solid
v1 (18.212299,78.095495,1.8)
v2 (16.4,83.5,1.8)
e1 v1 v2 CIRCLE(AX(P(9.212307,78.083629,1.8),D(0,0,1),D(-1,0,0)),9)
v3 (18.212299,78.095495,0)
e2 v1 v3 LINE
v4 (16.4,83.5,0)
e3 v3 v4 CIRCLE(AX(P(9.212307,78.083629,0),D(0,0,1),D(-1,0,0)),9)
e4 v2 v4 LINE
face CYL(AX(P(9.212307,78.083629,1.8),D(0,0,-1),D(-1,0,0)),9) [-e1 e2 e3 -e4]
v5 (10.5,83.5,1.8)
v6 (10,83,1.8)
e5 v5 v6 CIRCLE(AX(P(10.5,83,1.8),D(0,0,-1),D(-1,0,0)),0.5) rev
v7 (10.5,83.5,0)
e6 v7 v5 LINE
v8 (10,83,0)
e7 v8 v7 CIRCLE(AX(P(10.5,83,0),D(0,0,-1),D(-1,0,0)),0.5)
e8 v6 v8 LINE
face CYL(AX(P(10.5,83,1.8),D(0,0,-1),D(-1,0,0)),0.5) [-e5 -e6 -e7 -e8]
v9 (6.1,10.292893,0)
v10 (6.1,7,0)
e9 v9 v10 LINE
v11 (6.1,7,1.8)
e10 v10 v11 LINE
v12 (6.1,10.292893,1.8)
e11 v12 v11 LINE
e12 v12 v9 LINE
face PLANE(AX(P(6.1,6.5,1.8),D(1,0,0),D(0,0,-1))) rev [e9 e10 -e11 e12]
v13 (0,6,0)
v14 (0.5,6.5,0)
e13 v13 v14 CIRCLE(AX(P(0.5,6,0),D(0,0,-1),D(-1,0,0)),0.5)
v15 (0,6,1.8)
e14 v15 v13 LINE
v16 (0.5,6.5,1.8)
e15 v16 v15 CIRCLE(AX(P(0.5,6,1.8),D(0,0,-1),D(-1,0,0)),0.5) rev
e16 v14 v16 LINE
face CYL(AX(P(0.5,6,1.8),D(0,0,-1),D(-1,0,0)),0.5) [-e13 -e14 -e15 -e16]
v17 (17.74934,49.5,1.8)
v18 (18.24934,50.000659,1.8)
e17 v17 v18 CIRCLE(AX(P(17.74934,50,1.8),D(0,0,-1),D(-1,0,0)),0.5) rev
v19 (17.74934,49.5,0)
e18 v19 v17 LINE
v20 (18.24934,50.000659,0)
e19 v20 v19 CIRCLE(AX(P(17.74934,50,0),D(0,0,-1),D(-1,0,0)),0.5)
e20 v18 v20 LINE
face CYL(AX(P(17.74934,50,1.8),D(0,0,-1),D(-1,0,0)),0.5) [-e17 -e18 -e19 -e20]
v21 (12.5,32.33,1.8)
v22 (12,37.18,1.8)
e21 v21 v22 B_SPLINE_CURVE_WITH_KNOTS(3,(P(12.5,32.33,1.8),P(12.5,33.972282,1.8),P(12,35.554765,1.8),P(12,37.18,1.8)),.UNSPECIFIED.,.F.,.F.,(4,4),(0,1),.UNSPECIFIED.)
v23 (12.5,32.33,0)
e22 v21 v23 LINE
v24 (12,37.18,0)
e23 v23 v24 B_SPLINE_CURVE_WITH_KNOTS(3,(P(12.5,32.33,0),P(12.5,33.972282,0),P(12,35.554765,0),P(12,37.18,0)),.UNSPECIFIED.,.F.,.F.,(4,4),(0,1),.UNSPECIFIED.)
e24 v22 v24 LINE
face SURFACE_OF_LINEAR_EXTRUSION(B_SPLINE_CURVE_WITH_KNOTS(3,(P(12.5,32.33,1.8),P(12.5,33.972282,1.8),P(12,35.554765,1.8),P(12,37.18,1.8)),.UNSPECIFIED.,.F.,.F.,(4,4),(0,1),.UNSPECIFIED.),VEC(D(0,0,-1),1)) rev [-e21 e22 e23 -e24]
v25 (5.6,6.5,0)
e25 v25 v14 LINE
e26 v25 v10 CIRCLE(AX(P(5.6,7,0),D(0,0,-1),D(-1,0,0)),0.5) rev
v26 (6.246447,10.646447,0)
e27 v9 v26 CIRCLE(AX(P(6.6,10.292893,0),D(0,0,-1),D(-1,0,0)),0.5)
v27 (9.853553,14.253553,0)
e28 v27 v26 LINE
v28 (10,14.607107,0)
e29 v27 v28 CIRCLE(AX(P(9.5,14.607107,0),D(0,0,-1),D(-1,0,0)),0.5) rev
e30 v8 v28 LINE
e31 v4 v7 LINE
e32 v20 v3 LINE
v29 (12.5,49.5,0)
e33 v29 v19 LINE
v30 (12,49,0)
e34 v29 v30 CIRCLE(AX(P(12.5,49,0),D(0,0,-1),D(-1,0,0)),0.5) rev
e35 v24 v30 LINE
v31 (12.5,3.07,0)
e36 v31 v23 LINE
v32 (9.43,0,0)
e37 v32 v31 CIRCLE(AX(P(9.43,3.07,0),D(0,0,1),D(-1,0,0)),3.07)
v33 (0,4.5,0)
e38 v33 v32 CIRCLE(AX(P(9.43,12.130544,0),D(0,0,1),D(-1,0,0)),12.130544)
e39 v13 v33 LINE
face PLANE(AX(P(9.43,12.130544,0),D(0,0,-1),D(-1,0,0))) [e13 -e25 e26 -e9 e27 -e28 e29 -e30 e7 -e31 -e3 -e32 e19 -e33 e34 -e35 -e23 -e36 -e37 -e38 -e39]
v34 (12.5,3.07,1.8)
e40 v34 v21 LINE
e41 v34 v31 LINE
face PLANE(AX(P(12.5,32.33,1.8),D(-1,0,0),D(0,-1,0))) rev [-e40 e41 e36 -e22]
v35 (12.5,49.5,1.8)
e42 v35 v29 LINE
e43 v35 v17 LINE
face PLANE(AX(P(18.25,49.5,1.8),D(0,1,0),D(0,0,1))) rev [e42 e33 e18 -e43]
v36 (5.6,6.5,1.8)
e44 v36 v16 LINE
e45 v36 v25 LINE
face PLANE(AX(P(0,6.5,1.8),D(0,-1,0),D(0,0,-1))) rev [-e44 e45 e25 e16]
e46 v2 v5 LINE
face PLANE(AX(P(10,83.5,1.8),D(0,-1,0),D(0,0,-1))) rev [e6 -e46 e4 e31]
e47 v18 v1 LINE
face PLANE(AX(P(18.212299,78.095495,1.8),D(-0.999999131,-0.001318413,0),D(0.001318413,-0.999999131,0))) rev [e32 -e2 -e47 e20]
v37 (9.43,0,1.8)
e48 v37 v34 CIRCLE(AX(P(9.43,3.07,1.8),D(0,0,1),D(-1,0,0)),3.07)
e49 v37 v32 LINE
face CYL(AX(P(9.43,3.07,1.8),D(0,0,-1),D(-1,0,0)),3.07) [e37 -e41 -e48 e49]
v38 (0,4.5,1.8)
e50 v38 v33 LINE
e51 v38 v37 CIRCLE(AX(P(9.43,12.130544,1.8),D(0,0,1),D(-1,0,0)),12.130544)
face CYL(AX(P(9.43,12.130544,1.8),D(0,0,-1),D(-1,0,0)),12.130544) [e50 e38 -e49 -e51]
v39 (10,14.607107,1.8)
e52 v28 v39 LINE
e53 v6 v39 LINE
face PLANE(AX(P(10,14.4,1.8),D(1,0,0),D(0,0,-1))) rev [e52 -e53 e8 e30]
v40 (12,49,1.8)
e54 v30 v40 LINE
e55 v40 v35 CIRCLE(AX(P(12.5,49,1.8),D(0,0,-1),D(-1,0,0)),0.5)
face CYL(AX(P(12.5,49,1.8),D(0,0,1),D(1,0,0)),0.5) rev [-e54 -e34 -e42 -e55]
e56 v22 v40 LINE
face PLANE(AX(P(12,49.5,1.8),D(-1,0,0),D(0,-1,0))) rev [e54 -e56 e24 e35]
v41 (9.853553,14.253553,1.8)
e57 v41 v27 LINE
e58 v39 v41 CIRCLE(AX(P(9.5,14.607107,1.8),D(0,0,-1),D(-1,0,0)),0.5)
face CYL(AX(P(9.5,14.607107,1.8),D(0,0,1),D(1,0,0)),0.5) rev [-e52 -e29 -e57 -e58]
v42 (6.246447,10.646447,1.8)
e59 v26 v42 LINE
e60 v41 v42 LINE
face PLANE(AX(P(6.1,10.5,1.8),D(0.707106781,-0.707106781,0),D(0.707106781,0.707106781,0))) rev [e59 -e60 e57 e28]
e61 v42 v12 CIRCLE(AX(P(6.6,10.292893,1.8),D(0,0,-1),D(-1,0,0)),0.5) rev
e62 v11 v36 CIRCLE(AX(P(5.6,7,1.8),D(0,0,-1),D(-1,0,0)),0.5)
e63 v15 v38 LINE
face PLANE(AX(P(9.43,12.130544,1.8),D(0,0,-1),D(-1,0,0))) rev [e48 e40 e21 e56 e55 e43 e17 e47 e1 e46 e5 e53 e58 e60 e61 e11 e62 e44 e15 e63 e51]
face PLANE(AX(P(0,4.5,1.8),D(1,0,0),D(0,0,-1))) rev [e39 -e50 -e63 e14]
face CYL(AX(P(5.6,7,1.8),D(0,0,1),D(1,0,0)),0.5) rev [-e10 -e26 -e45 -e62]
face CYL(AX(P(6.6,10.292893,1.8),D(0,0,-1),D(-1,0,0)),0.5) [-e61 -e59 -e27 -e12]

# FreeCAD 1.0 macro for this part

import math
import FreeCAD as App
import Part
import Sketcher
Q = App.Units.Quantity


def edges_at(feature, points):
    """Names of the edges that pass closest to the given points."""
    edges = feature.Shape.Edges
    near = lambda p: min(range(len(edges)), key=lambda i: edges[i].distToShape(Part.Vertex(*p))[0])
    return sorted({f"Edge{near(p) + 1}" for p in points})

doc = App.newDocument("Part")
params = doc.addObject("Spreadsheet::Sheet", "Params")
for row, (alias, value) in enumerate([
    ("sketch1_radius", "9 mm"),
    ("sketch1_height", "2 mm"),
    ("sketch1_height2", "4 mm"),
    ("sketch1_radius2", "3.07 mm"),
    ("sketch1_width", "6.4 mm"),
    ("pad1_length", "1.8 mm"),
    ("fillet_radius", "0.5 mm"),
], start=1):
    params.set(f"A{row}", alias)
    params.set(f"B{row}", "=" + value)
    params.setAlias(f"B{row}", alias)

body = doc.addObject("PartDesign::Body", "Body")

sketch1 = body.newObject("Sketcher::SketchObject", "Sketch")
sketch1.AttachmentSupport = (doc.getObject("XY_Plane"), [""])
sketch1.MapMode = "FlatFace"
sketch1.addGeometry([
    Part.LineSegment(App.Vector(0, 6.5, 0), App.Vector(0, 4.5, 0)),
    Part.ArcOfCircle(Part.Circle(App.Vector(9.43, 12.130544, 0), App.Vector(0, 0, 1), 12.130544), math.radians(-141.020993), math.radians(-90)),
    Part.ArcOfCircle(Part.Circle(App.Vector(9.43, 3.07, 0), App.Vector(0, 0, 1), 3.07), math.radians(-90), math.radians(0)),
    Part.LineSegment(App.Vector(12.5, 3.07, 0), App.Vector(12.5, 32.33, 0)),
    Part.BSplineCurve([App.Vector(12, 37.18, 0), App.Vector(12, 35.554765, 0), App.Vector(12.5, 33.972282, 0), App.Vector(12.5, 32.33, 0)], [4, 4], [0, 1], False, 3, [1, 1, 1, 1], False),
    Part.LineSegment(App.Vector(12, 37.18, 0), App.Vector(12, 49.5, 0)),
    Part.LineSegment(App.Vector(12, 49.5, 0), App.Vector(18.25, 49.5, 0)),
    Part.LineSegment(App.Vector(18.25, 49.5, 0), App.Vector(18.212299, 78.095495, 0)),
    Part.ArcOfCircle(Part.Circle(App.Vector(9.212307, 78.083629, 0), App.Vector(0, 0, 1), 9), math.radians(0.07554), math.radians(37.000283)),
    Part.LineSegment(App.Vector(16.4, 83.5, 0), App.Vector(10, 83.5, 0)),
    Part.LineSegment(App.Vector(10, 83.5, 0), App.Vector(10, 14.4, 0)),
    Part.LineSegment(App.Vector(10, 14.4, 0), App.Vector(6.1, 10.5, 0)),
    Part.LineSegment(App.Vector(6.1, 10.5, 0), App.Vector(6.1, 6.5, 0)),
    Part.LineSegment(App.Vector(6.1, 6.5, 0), App.Vector(0, 6.5, 0)),
], False)
sketch1.addConstraint([
    Sketcher.Constraint("Block", 4),
    Sketcher.Constraint("Coincident", 0, 2, 1, 1),
    Sketcher.Constraint("Tangent", 1, 2, 2, 1),
    Sketcher.Constraint("Tangent", 2, 2, 3, 1),
    Sketcher.Constraint("Coincident", 3, 2, 4, 2),
    Sketcher.Constraint("Coincident", 4, 1, 5, 1),
    Sketcher.Constraint("Coincident", 5, 2, 6, 1),
    Sketcher.Constraint("Coincident", 6, 2, 7, 1),
    Sketcher.Constraint("Tangent", 7, 2, 8, 1),
    Sketcher.Constraint("Coincident", 8, 2, 9, 1),
    Sketcher.Constraint("Coincident", 9, 2, 10, 1),
    Sketcher.Constraint("Coincident", 10, 2, 11, 1),
    Sketcher.Constraint("Coincident", 11, 2, 12, 1),
    Sketcher.Constraint("Coincident", 12, 2, 13, 1),
    Sketcher.Constraint("Coincident", 13, 2, 0, 1),
    Sketcher.Constraint("Vertical", 0),
    Sketcher.Constraint("Vertical", 3),
    Sketcher.Constraint("Vertical", 5),
    Sketcher.Constraint("Horizontal", 6),
    Sketcher.Constraint("Horizontal", 9),
    Sketcher.Constraint("Vertical", 10),
    Sketcher.Constraint("Vertical", 12),
    Sketcher.Constraint("Horizontal", 13),
    Sketcher.Constraint("PointOnObject", 0, 2, -2),
    Sketcher.Constraint("PointOnObject", 1, 2, -1),
    Sketcher.Constraint("Vertical", 1, 3, 2, 3),
    Sketcher.Constraint("Radius", 8, Q("9 mm")),
    Sketcher.Constraint("DistanceY", 0, 2, 0, 1, Q("2 mm")),
    Sketcher.Constraint("DistanceY", 12, 2, 12, 1, Q("4 mm")),
    Sketcher.Constraint("Angle", 11, Q("-135 deg")),
    Sketcher.Constraint("Radius", 2, Q("3.07 mm")),
    Sketcher.Constraint("DistanceX", 9, 2, 9, 1, Q("6.4 mm")),
    Sketcher.Constraint("DistanceX", 13, 2, 13, 1, Q("6.1 mm")),
    Sketcher.Constraint("DistanceY", 10, 2, 10, 1, Q("69.1 mm")),
    Sketcher.Constraint("DistanceX", -1, 1, 9, 2, Q("10 mm")),
    Sketcher.Constraint("DistanceY", 6, 2, 8, 2, Q("34 mm")),
    Sketcher.Constraint("DistanceX", 6, 1, 6, 2, Q("6.25 mm")),
    Sketcher.Constraint("DistanceY", 5, 1, 5, 2, Q("12.32 mm")),
    Sketcher.Constraint("DistanceX", -1, 1, 7, 2, Q("18.212299 mm")),
])
sketch1.setExpression("Constraints[26]", "Params.sketch1_radius")
sketch1.setExpression("Constraints[27]", "Params.sketch1_height")
sketch1.setExpression("Constraints[28]", "Params.sketch1_height2")
sketch1.setExpression("Constraints[30]", "Params.sketch1_radius2")
sketch1.setExpression("Constraints[31]", "Params.sketch1_width")
pad1 = body.newObject("PartDesign::Pad", "Pad")
pad1.Profile = sketch1
pad1.setExpression("Length", "Params.pad1_length")
doc.recompute()

fillet = body.newObject("PartDesign::Fillet", "Fillet")
fillet.Base = (pad1, edges_at(pad1, [
    (0, 6.5, 0.9),
    (6.1, 6.5, 0.9),
    (6.1, 10.5, 0.9),
    (10, 14.4, 0.9),
    (10, 83.5, 0.9),
    (18.25, 49.5, 0.9),
    (12, 49.5, 0.9),
]))
fillet.setExpression("Radius", "Params.fillet_radius")

doc.recompute()
